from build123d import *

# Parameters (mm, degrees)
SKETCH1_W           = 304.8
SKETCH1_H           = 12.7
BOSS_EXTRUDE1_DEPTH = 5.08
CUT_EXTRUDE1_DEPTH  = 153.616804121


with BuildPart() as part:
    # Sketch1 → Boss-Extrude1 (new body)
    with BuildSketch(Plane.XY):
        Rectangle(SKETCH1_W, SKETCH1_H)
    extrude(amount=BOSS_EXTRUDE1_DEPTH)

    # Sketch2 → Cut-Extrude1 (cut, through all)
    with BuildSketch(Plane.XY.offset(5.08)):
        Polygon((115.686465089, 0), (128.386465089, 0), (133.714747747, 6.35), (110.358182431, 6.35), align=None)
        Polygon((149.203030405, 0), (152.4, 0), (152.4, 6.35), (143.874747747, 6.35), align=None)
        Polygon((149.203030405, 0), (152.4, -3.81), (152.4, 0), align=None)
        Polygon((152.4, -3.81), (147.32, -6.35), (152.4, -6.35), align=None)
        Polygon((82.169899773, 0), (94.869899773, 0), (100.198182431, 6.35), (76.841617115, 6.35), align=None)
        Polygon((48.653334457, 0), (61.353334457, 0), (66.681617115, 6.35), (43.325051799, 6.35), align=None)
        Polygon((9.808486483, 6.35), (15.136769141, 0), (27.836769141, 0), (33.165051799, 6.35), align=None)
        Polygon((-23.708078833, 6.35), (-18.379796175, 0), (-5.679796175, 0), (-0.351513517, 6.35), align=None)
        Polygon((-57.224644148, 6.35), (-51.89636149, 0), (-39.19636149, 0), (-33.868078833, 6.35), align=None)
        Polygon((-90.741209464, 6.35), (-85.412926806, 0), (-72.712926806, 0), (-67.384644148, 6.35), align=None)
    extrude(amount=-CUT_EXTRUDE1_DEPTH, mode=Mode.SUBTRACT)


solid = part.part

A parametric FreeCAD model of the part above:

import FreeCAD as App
import Part
import Sketcher
Q = App.Units.Quantity

doc = App.newDocument("Part")
body = doc.addObject("PartDesign::Body", "Body")

sketch1 = body.newObject("Sketcher::SketchObject", "Sketch")
sketch1.AttachmentSupport = (doc.getObject("XY_Plane"), [""])
sketch1.MapMode = "FlatFace"
sketch1.addGeometry(Part.LineSegment(App.Vector(-152, 6, 0), App.Vector(-152, -6, 0)), False)
sketch1.addGeometry(Part.LineSegment(App.Vector(-152, -6, 0), App.Vector(152, -6, 0)), False)
sketch1.addGeometry(Part.LineSegment(App.Vector(152, -6, 0), App.Vector(152, 6, 0)), False)
sketch1.addGeometry(Part.LineSegment(App.Vector(152, 6, 0), App.Vector(-152, 6, 0)), False)
sketch1.addConstraint(Sketcher.Constraint("Coincident", 0, 2, 1, 1))
sketch1.addConstraint(Sketcher.Constraint("Coincident", 1, 2, 2, 1))
sketch1.addConstraint(Sketcher.Constraint("Coincident", 2, 2, 3, 1))
sketch1.addConstraint(Sketcher.Constraint("Coincident", 3, 2, 0, 1))
sketch1.addConstraint(Sketcher.Constraint("Vertical", 0))
sketch1.addConstraint(Sketcher.Constraint("Horizontal", 1))
sketch1.addConstraint(Sketcher.Constraint("Vertical", 2))
sketch1.addConstraint(Sketcher.Constraint("Horizontal", 3))
sketch1.addConstraint(Sketcher.Constraint("Symmetric", 0, 2, 2, 2, -1, 1))
sketch1.addConstraint(Sketcher.Constraint("DistanceX", 1, 1, 1, 2, Q("12 in")))
sketch1.addConstraint(Sketcher.Constraint("DistanceY", 0, 2, 0, 1, Q("0.5 in")))
pad1 = body.newObject("PartDesign::Pad", "Pad")
pad1.Profile = sketch1
pad1.Length = Q("0.2 in")

sketch2 = body.newObject("Sketcher::SketchObject", "Sketch001")
sketch2.AttachmentSupport = (doc.getObject("XY_Plane"), [""])
sketch2.MapMode = "FlatFace"
sketch2.AttachmentOffset = App.Placement(App.Vector(0, 0, 0.2 * 25.4), App.Rotation())
sketch2.addGeometry(Part.LineSegment(App.Vector(115.7, 0, 0), App.Vector(128.4, 0, 0)), False)
sketch2.addGeometry(Part.LineSegment(App.Vector(128.4, 0, 0), App.Vector(133.7, 6.3, 0)), False)
sketch2.addGeometry(Part.LineSegment(App.Vector(133.7, 6.3, 0), App.Vector(110.4, 6.3, 0)), False)
sketch2.addGeometry(Part.LineSegment(App.Vector(110.4, 6.3, 0), App.Vector(115.7, 0, 0)), False)
sketch2.addGeometry(Part.LineSegment(App.Vector(152.4, 6.3, 0), App.Vector(143.9, 6.3, 0)), False)
sketch2.addGeometry(Part.LineSegment(App.Vector(143.9, 6.3, 0), App.Vector(149.2, 0, 0)), False)
sketch2.addGeometry(Part.LineSegment(App.Vector(149.2, 0, 0), App.Vector(152.4, -3.8, 0)), False)
sketch2.addGeometry(Part.LineSegment(App.Vector(152.4, -3.8, 0), App.Vector(152.4, 6.3, 0)), False)
sketch2.addGeometry(Part.LineSegment(App.Vector(152.4, -3.8, 0), App.Vector(147.3, -6.3, 0)), False)
sketch2.addGeometry(Part.LineSegment(App.Vector(147.3, -6.3, 0), App.Vector(152.4, -6.3, 0)), False)
sketch2.addGeometry(Part.LineSegment(App.Vector(152.4, -6.3, 0), App.Vector(152.4, -3.8, 0)), False)
sketch2.addGeometry(Part.LineSegment(App.Vector(82.2, 0, 0), App.Vector(94.9, 0, 0)), False)
sketch2.addGeometry(Part.LineSegment(App.Vector(94.9, 0, 0), App.Vector(100.2, 6.3, 0)), False)
sketch2.addGeometry(Part.LineSegment(App.Vector(100.2, 6.3, 0), App.Vector(76.8, 6.3, 0)), False)
sketch2.addGeometry(Part.LineSegment(App.Vector(76.8, 6.3, 0), App.Vector(82.2, 0, 0)), False)
sketch2.addGeometry(Part.LineSegment(App.Vector(48.7, 0, 0), App.Vector(61.4, 0, 0)), False)
sketch2.addGeometry(Part.LineSegment(App.Vector(61.4, 0, 0), App.Vector(66.7, 6.3, 0)), False)
sketch2.addGeometry(Part.LineSegment(App.Vector(66.7, 6.3, 0), App.Vector(43.3, 6.3, 0)), False)
sketch2.addGeometry(Part.LineSegment(App.Vector(43.3, 6.3, 0), App.Vector(48.7, 0, 0)), False)
sketch2.addGeometry(Part.LineSegment(App.Vector(9.8, 6.3, 0), App.Vector(15.1, 0, 0)), False)
sketch2.addGeometry(Part.LineSegment(App.Vector(15.1, 0, 0), App.Vector(27.8, 0, 0)), False)
sketch2.addGeometry(Part.LineSegment(App.Vector(27.8, 0, 0), App.Vector(33.2, 6.3, 0)), False)
sketch2.addGeometry(Part.LineSegment(App.Vector(33.2, 6.3, 0), App.Vector(9.8, 6.3, 0)), False)
sketch2.addGeometry(Part.LineSegment(App.Vector(-23.7, 6.3, 0), App.Vector(-18.4, 0, 0)), False)
sketch2.addGeometry(Part.LineSegment(App.Vector(-18.4, 0, 0), App.Vector(-5.7, 0, 0)), False)
sketch2.addGeometry(Part.LineSegment(App.Vector(-5.7, 0, 0), App.Vector(-0.4, 6.3, 0)), False)
sketch2.addGeometry(Part.LineSegment(App.Vector(-0.4, 6.3, 0), App.Vector(-23.7, 6.3, 0)), False)
sketch2.addGeometry(Part.LineSegment(App.Vector(-57.2, 6.3, 0), App.Vector(-51.9, 0, 0)), False)
sketch2.addGeometry(Part.LineSegment(App.Vector(-51.9, 0, 0), App.Vector(-39.2, 0, 0)), False)
sketch2.addGeometry(Part.LineSegment(App.Vector(-39.2, 0, 0), App.Vector(-33.9, 6.3, 0)), False)
sketch2.addGeometry(Part.LineSegment(App.Vector(-33.9, 6.3, 0), App.Vector(-57.2, 6.3, 0)), False)
sketch2.addGeometry(Part.LineSegment(App.Vector(-90.7, 6.3, 0), App.Vector(-85.4, 0, 0)), False)
sketch2.addGeometry(Part.LineSegment(App.Vector(-85.4, 0, 0), App.Vector(-72.7, 0, 0)), False)
sketch2.addGeometry(Part.LineSegment(App.Vector(-72.7, 0, 0), App.Vector(-67.4, 6.3, 0)), False)
sketch2.addGeometry(Part.LineSegment(App.Vector(-67.4, 6.3, 0), App.Vector(-90.7, 6.3, 0)), False)
sketch2.addConstraint(Sketcher.Constraint("Coincident", 0, 2, 1, 1))
sketch2.addConstraint(Sketcher.Constraint("Coincident", 1, 2, 2, 1))
sketch2.addConstraint(Sketcher.Constraint("Coincident", 2, 2, 3, 1))
sketch2.addConstraint(Sketcher.Constraint("Coincident", 3, 2, 0, 1))
sketch2.addConstraint(Sketcher.Constraint("Coincident", 4, 2, 5, 1))
sketch2.addConstraint(Sketcher.Constraint("Coincident", 5, 2, 6, 1))
sketch2.addConstraint(Sketcher.Constraint("Coincident", 6, 2, 7, 1))
sketch2.addConstraint(Sketcher.Constraint("Coincident", 7, 2, 4, 1))
sketch2.addConstraint(Sketcher.Constraint("Coincident", 8, 2, 9, 1))
sketch2.addConstraint(Sketcher.Constraint("Coincident", 9, 2, 10, 1))
sketch2.addConstraint(Sketcher.Constraint("Coincident", 10, 2, 8, 1))
sketch2.addConstraint(Sketcher.Constraint("Coincident", 11, 2, 12, 1))
sketch2.addConstraint(Sketcher.Constraint("Coincident", 12, 2, 13, 1))
sketch2.addConstraint(Sketcher.Constraint("Coincident", 13, 2, 14, 1))
sketch2.addConstraint(Sketcher.Constraint("Coincident", 14, 2, 11, 1))
sketch2.addConstraint(Sketcher.Constraint("Coincident", 15, 2, 16, 1))
sketch2.addConstraint(Sketcher.Constraint("Coincident", 16, 2, 17, 1))
sketch2.addConstraint(Sketcher.Constraint("Coincident", 17, 2, 18, 1))
sketch2.addConstraint(Sketcher.Constraint("Coincident", 18, 2, 15, 1))
sketch2.addConstraint(Sketcher.Constraint("Coincident", 19, 2, 20, 1))
sketch2.addConstraint(Sketcher.Constraint("Coincident", 20, 2, 21, 1))
sketch2.addConstraint(Sketcher.Constraint("Coincident", 21, 2, 22, 1))
sketch2.addConstraint(Sketcher.Constraint("Coincident", 22, 2, 19, 1))
sketch2.addConstraint(Sketcher.Constraint("Coincident", 23, 2, 24, 1))
sketch2.addConstraint(Sketcher.Constraint("Coincident", 24, 2, 25, 1))
sketch2.addConstraint(Sketcher.Constraint("Coincident", 25, 2, 26, 1))
sketch2.addConstraint(Sketcher.Constraint("Coincident", 26, 2, 23, 1))
sketch2.addConstraint(Sketcher.Constraint("Coincident", 27, 2, 28, 1))
sketch2.addConstraint(Sketcher.Constraint("Coincident", 28, 2, 29, 1))
sketch2.addConstraint(Sketcher.Constraint("Coincident", 29, 2, 30, 1))
sketch2.addConstraint(Sketcher.Constraint("Coincident", 30, 2, 27, 1))
sketch2.addConstraint(Sketcher.Constraint("Coincident", 31, 2, 32, 1))
sketch2.addConstraint(Sketcher.Constraint("Coincident", 32, 2, 33, 1))
sketch2.addConstraint(Sketcher.Constraint("Coincident", 33, 2, 34, 1))
sketch2.addConstraint(Sketcher.Constraint("Coincident", 34, 2, 31, 1))
sketch2.addConstraint(Sketcher.Constraint("Horizontal", 0))
sketch2.addConstraint(Sketcher.Constraint("Horizontal", 2))
sketch2.addConstraint(Sketcher.Constraint("Horizontal", 4))
sketch2.addConstraint(Sketcher.Constraint("Vertical", 7))
sketch2.addConstraint(Sketcher.Constraint("Horizontal", 9))
sketch2.addConstraint(Sketcher.Constraint("Vertical", 10))
sketch2.addConstraint(Sketcher.Constraint("Horizontal", 11))
sketch2.addConstraint(Sketcher.Constraint("Horizontal", 13))
sketch2.addConstraint(Sketcher.Constraint("Horizontal", 15))
sketch2.addConstraint(Sketcher.Constraint("Horizontal", 17))
sketch2.addConstraint(Sketcher.Constraint("Horizontal", 20))
sketch2.addConstraint(Sketcher.Constraint("Horizontal", 22))
sketch2.addConstraint(Sketcher.Constraint("Horizontal", 24))
sketch2.addConstraint(Sketcher.Constraint("Horizontal", 26))
sketch2.addConstraint(Sketcher.Constraint("Horizontal", 28))
sketch2.addConstraint(Sketcher.Constraint("Horizontal", 30))
sketch2.addConstraint(Sketcher.Constraint("Horizontal", 32))
sketch2.addConstraint(Sketcher.Constraint("Horizontal", 34))
sketch2.addConstraint(Sketcher.Constraint("Coincident", 10, 2, 6, 2))
sketch2.addConstraint(Sketcher.Constraint("PointOnObject", 0, 2, -1))
sketch2.addConstraint(Sketcher.Constraint("PointOnObject", 5, 2, -1))
sketch2.addConstraint(Sketcher.Constraint("PointOnObject", 11, 2, -1))
sketch2.addConstraint(Sketcher.Constraint("PointOnObject", 15, 2, -1))
sketch2.addConstraint(Sketcher.Constraint("PointOnObject", 19, 2, -1))
sketch2.addConstraint(Sketcher.Constraint("PointOnObject", 23, 2, -1))
sketch2.addConstraint(Sketcher.Constraint("PointOnObject", 27, 2, -1))
sketch2.addConstraint(Sketcher.Constraint("PointOnObject", 31, 2, -1))
sketch2.addConstraint(Sketcher.Constraint("Parallel", 3, 5))
sketch2.addConstraint(Sketcher.Constraint("Parallel", 5, 6))
sketch2.addConstraint(Sketcher.Constraint("Parallel", 1, 12))
sketch2.addConstraint(Sketcher.Constraint("Parallel", 6, 14))
sketch2.addConstraint(Sketcher.Constraint("Parallel", 12, 16))
sketch2.addConstraint(Sketcher.Constraint("Parallel", 14, 18))
sketch2.addConstraint(Sketcher.Constraint("Parallel", 18, 19))
sketch2.addConstraint(Sketcher.Constraint("Parallel", 16, 21))
sketch2.addConstraint(Sketcher.Constraint("Parallel", 19, 23))
sketch2.addConstraint(Sketcher.Constraint("Parallel", 21, 25))
sketch2.addConstraint(Sketcher.Constraint("Parallel", 23, 27))
sketch2.addConstraint(Sketcher.Constraint("Parallel", 25, 29))
sketch2.addConstraint(Sketcher.Constraint("Parallel", 27, 31))
sketch2.addConstraint(Sketcher.Constraint("Parallel", 29, 33))
sketch2.addConstraint(Sketcher.Constraint("Horizontal", 2, 2, 4, 2))
sketch2.addConstraint(Sketcher.Constraint("Horizontal", 7, 2, 12, 2))
sketch2.addConstraint(Sketcher.Constraint("Horizontal", 13, 2, 16, 2))
sketch2.addConstraint(Sketcher.Constraint("Horizontal", 17, 2, 21, 2))
sketch2.addConstraint(Sketcher.Constraint("Horizontal", 22, 2, 25, 2))
sketch2.addConstraint(Sketcher.Constraint("Horizontal", 26, 2, 29, 2))
sketch2.addConstraint(Sketcher.Constraint("Horizontal", 30, 2, 33, 2))
sketch2.addConstraint(Sketcher.Constraint("Equal", 0, 11))
sketch2.addConstraint(Sketcher.Constraint("Equal", 11, 15))
sketch2.addConstraint(Sketcher.Constraint("Equal", 15, 20))
sketch2.addConstraint(Sketcher.Constraint("Equal", 20, 24))
sketch2.addConstraint(Sketcher.Constraint("Equal", 24, 28))
sketch2.addConstraint(Sketcher.Constraint("Equal", 28, 32))
sketch2.addConstraint(Sketcher.Constraint("Equal", 1, 3))
sketch2.addConstraint(Sketcher.Constraint("DistanceX", 0, 1, 0, 2, Q("0.5 in")))
sketch2.addConstraint(Sketcher.Constraint("DistanceX", 9, 1, 9, 2, Q("0.2 in")))
sketch2.addConstraint(Sketcher.Constraint("DistanceY", 7, 1, 7, 2, Q("0.4 in")))
sketch2.addConstraint(Sketcher.Constraint("DistanceY", 10, 1, 10, 2, Q("0.1 in")))
sketch2.addConstraint(Sketcher.Constraint("DistanceX", -1, 1, 6, 2, Q("6 in")))
sketch2.addConstraint(Sketcher.Constraint("Angle", 1, Q("50 deg")))
sketch2.addConstraint(Sketcher.Constraint("DistanceX", 1, 2, 4, 2, Q("0.4 in")))
sketch2.addConstraint(Sketcher.Constraint("DistanceX", 12, 2, 2, 2, Q("0.4 in")))
sketch2.addConstraint(Sketcher.Constraint("DistanceX", 16, 2, 13, 2, Q("0.4 in")))
sketch2.addConstraint(Sketcher.Constraint("DistanceX", 21, 2, 17, 2, Q("0.4 in")))
sketch2.addConstraint(Sketcher.Constraint("DistanceX", 25, 2, 22, 2, Q("0.4 in")))
sketch2.addConstraint(Sketcher.Constraint("DistanceX", 29, 2, 26, 2, Q("0.4 in")))
sketch2.addConstraint(Sketcher.Constraint("DistanceX", 33, 2, 30, 2, Q("0.4 in")))
sketch2.addConstraint(Sketcher.Constraint("DistanceY", -1, 1, 1, 2, Q("0.25 in")))
pocket1 = body.newObject("PartDesign::Pocket", "Pocket")
pocket1.Profile = sketch2
pocket1.Type = "ThroughAll"

doc.recompute()
